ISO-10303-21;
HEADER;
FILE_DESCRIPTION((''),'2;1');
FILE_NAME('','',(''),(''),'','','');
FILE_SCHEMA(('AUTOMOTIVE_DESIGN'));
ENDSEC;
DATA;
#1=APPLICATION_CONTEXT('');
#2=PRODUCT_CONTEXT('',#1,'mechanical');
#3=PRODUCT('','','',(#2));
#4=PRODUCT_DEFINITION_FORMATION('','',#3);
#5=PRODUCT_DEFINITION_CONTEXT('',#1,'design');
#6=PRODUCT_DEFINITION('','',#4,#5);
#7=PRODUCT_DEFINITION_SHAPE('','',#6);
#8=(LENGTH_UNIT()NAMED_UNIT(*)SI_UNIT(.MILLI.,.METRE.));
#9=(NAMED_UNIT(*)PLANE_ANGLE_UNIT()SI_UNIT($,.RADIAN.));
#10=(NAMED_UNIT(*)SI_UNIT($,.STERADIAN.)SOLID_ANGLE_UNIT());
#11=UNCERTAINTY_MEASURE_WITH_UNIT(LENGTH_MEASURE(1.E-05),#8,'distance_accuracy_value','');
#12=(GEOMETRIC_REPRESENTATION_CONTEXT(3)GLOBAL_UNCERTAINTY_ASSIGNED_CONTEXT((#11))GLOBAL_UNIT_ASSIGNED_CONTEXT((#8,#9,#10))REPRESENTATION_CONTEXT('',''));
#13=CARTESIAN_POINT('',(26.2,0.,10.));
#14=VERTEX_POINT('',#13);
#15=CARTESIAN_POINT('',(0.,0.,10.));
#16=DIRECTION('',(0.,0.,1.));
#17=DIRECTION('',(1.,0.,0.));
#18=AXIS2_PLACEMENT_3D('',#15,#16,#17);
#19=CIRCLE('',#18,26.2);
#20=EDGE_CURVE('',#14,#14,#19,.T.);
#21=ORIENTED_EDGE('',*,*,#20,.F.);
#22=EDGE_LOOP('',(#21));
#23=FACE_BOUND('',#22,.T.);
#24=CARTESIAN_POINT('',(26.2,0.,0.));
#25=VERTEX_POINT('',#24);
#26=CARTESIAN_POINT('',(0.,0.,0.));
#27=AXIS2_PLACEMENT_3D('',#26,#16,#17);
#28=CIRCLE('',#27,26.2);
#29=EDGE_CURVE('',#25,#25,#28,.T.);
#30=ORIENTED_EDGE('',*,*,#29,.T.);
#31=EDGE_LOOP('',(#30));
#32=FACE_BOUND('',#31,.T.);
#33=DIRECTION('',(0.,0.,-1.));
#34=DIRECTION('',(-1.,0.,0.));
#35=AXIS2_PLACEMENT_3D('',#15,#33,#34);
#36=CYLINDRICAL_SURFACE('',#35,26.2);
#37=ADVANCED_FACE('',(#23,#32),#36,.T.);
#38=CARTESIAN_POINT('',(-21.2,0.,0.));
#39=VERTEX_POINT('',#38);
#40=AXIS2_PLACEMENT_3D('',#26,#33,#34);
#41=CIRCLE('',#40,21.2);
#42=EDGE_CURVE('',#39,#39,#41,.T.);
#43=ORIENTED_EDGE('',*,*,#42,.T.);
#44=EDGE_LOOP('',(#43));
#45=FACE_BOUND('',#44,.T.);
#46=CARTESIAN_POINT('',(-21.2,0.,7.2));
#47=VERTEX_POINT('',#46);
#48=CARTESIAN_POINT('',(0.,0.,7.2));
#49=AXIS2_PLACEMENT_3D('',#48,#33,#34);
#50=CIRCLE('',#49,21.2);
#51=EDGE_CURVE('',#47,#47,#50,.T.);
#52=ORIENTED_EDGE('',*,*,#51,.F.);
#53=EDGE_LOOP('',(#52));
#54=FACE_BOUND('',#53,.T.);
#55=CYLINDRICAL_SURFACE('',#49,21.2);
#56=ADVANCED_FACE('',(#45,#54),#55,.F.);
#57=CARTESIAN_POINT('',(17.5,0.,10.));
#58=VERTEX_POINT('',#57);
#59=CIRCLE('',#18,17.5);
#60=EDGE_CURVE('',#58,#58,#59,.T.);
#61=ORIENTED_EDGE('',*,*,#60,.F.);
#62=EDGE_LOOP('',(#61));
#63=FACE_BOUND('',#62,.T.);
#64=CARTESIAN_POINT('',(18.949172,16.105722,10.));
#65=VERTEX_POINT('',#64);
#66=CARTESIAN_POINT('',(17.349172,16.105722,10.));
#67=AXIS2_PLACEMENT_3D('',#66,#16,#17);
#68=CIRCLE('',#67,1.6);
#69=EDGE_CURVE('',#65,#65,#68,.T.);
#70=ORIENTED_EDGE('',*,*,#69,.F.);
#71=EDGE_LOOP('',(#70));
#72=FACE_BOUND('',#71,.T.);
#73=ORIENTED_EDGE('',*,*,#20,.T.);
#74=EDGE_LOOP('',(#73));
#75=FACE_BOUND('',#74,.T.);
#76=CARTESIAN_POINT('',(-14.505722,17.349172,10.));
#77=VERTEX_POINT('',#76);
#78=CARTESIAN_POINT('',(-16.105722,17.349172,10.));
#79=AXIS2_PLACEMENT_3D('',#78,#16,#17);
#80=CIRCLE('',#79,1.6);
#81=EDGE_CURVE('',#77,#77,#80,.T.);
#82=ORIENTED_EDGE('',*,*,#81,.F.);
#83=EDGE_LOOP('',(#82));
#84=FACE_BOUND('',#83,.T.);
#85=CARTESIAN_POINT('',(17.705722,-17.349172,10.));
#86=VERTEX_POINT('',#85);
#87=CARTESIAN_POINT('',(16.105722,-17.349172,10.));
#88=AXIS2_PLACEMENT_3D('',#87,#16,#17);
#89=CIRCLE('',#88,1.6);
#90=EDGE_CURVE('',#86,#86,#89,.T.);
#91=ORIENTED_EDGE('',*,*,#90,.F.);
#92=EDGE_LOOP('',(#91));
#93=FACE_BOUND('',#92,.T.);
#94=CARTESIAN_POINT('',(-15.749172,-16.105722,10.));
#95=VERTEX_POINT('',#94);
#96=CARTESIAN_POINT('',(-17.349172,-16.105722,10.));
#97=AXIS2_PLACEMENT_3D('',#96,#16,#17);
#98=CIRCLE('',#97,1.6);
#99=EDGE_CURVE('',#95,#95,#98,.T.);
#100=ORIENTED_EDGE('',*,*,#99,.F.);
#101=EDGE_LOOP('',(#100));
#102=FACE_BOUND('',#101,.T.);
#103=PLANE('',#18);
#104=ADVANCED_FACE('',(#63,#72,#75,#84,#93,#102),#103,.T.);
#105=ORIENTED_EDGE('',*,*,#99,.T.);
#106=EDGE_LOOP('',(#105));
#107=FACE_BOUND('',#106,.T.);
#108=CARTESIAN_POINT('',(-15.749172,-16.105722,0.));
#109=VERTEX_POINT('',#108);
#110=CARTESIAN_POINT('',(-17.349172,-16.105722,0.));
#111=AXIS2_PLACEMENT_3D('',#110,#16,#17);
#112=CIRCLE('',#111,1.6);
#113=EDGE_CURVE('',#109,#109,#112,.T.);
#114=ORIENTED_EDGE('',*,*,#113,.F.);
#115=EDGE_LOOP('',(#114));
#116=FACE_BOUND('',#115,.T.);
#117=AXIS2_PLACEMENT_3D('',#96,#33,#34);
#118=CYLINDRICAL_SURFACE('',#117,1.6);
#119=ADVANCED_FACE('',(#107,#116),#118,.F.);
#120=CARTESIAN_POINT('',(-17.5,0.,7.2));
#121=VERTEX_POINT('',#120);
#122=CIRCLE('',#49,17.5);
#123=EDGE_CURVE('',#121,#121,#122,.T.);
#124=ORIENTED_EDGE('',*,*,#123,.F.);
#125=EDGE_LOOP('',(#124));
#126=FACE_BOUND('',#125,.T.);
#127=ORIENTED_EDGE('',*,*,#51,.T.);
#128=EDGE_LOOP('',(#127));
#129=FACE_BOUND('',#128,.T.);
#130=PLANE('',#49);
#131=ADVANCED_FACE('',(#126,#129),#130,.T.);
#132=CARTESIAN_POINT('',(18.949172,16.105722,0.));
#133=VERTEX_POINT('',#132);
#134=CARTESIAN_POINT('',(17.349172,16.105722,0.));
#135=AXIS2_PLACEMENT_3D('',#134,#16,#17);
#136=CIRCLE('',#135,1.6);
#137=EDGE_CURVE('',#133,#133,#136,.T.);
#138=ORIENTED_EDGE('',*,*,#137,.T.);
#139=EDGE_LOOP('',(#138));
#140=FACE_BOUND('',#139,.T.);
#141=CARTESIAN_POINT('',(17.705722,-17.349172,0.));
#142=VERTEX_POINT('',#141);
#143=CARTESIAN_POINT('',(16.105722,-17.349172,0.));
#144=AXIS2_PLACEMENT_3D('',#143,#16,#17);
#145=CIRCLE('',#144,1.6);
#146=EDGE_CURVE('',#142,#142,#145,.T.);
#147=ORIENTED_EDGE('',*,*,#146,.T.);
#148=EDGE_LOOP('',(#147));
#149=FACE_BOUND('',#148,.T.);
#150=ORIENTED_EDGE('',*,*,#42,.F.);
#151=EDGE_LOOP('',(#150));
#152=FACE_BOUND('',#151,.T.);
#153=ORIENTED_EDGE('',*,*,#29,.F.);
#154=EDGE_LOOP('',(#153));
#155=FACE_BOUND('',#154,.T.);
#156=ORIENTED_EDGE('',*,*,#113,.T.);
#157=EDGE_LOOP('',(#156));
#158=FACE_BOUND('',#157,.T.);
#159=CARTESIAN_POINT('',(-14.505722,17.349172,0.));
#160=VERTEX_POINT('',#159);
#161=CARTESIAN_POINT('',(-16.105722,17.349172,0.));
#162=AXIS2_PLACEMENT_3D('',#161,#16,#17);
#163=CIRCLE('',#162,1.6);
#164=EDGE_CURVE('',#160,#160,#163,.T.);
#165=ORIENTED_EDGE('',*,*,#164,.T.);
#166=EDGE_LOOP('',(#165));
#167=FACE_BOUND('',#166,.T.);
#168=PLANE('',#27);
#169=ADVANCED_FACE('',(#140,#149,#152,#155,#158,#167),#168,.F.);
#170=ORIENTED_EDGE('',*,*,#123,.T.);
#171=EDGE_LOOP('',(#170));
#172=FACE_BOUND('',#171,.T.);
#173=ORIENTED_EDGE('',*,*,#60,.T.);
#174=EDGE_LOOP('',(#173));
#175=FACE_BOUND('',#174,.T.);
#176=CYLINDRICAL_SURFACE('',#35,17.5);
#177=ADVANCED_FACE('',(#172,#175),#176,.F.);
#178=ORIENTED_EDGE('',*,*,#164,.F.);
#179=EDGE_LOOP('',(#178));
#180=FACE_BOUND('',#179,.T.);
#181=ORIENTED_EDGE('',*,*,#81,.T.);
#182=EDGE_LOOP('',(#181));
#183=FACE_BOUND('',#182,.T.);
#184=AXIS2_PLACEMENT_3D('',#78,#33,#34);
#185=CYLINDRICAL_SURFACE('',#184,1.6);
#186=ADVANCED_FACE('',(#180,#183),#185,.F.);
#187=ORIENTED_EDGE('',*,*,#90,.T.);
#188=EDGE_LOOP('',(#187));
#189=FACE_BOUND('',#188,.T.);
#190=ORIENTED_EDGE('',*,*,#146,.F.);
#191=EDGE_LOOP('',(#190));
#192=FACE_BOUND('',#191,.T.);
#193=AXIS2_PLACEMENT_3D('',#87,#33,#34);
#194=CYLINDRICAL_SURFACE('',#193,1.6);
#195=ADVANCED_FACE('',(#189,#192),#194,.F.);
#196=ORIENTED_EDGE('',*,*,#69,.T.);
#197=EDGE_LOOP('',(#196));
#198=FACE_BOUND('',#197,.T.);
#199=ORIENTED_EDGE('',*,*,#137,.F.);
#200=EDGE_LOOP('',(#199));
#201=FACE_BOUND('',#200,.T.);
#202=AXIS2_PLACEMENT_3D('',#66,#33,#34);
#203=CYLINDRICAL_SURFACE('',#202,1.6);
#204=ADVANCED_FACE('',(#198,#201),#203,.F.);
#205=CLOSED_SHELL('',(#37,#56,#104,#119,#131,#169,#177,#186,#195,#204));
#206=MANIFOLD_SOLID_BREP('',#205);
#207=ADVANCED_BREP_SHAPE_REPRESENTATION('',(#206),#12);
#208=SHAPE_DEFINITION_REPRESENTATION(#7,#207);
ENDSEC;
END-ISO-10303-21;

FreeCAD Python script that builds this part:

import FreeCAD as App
import Part
import Sketcher
from FreeCAD import Vector

doc = App.newDocument("Part")
params = doc.addObject("Spreadsheet::Sheet", "Params")
for row, (alias, value) in enumerate([
    ("sketch1_diameter", "35 mm"),
    ("sketch1_diameter2", "52.4 mm"),
    ("sketch1_diameter3", "3.2 mm"),
    ("pad1_length", "10 mm"),
    ("sketch2_diameter", "42.4 mm"),
    ("pocket1_length", "7.2 mm"),
], start=1):
    params.set(f"A{row}", alias)
    params.set(f"B{row}", "=" + value)
    params.setAlias(f"B{row}", alias)

body = doc.addObject("PartDesign::Body", "Body")

sketch1 = doc.addObject("Sketcher::SketchObject", "Sketch")
body.addObject(sketch1)
sketch1.AttachmentSupport = (doc.XY_Plane, [""])
sketch1.MapMode = "FlatFace"
sketch1.addGeometry(Part.Circle(Vector(0, 0, 0), Vector(0, 0, 1), 26.2), False)
sketch1.addGeometry(Part.Circle(Vector(-17.3, -16.1, 0), Vector(0, 0, 1), 1.6), False)
sketch1.addGeometry(Part.Circle(Vector(16.1, -17.3, 0), Vector(0, 0, 1), 1.6), False)
sketch1.addGeometry(Part.Circle(Vector(-16.1, 17.3, 0), Vector(0, 0, 1), 1.6), False)
sketch1.addGeometry(Part.Circle(Vector(0, 0, 0), Vector(0, 0, 1), 17.5), False)
sketch1.addGeometry(Part.Circle(Vector(17.3, 16.1, 0), Vector(0, 0, 1), 1.6), False)
sketch1.addConstraint(Sketcher.Constraint("Coincident", 0, 3, -1, 1))
sketch1.addConstraint(Sketcher.Constraint("Coincident", 4, 3, -1, 1))
sketch1.addConstraint(Sketcher.Constraint("Equal", 1, 2))
sketch1.addConstraint(Sketcher.Constraint("Equal", 2, 3))
sketch1.addConstraint(Sketcher.Constraint("Equal", 3, 5))
sketch1.addConstraint(Sketcher.Constraint("Symmetric", 2, 3, 3, 3, -1, 1))
sketch1.addConstraint(Sketcher.Constraint("Symmetric", 1, 3, 5, 3, -1, 1))
sketch1.addConstraint(Sketcher.Constraint("Diameter", 4, 35.0))
sketch1.addConstraint(Sketcher.Constraint("Diameter", 0, 52.4))
sketch1.addConstraint(Sketcher.Constraint("Diameter", 1, 3.2))
sketch1.addConstraint(Sketcher.Constraint("DistanceX", 1, 3, -1, 1, 17.349172))
sketch1.addConstraint(Sketcher.Constraint("DistanceY", 2, 3, -1, 1, 17.349172))
sketch1.addConstraint(Sketcher.Constraint("DistanceY", 2, 3, 1, 3, 1.24345))
sketch1.addConstraint(Sketcher.Constraint("DistanceX", 1, 3, 3, 3, 1.24345))
sketch1.setExpression("Constraints[7]", "Params.sketch1_diameter")
sketch1.setExpression("Constraints[8]", "Params.sketch1_diameter2")
sketch1.setExpression("Constraints[9]", "Params.sketch1_diameter3")
pad1 = doc.addObject("PartDesign::Pad", "Pad")
body.addObject(pad1)
pad1.Profile = sketch1
pad1.setExpression("Length", "Params.pad1_length")

sketch2 = doc.addObject("Sketcher::SketchObject", "Sketch001")
body.addObject(sketch2)
sketch2.AttachmentSupport = (doc.XY_Plane, [""])
sketch2.MapMode = "FlatFace"
sketch2.addGeometry(Part.Circle(Vector(0, 0, 0), Vector(0, 0, 1), 21), False)
sketch2.addConstraint(Sketcher.Constraint("Coincident", 0, 3, -1, 1))
sketch2.addConstraint(Sketcher.Constraint("Diameter", 0, 42.4))
sketch2.setExpression("Constraints[1]", "Params.sketch2_diameter")
pocket1 = doc.addObject("PartDesign::Pocket", "Pocket")
body.addObject(pocket1)
pocket1.Profile = sketch2
pocket1.setExpression("Length", "Params.pocket1_length")
pocket1.Reversed = True

doc.recompute()
